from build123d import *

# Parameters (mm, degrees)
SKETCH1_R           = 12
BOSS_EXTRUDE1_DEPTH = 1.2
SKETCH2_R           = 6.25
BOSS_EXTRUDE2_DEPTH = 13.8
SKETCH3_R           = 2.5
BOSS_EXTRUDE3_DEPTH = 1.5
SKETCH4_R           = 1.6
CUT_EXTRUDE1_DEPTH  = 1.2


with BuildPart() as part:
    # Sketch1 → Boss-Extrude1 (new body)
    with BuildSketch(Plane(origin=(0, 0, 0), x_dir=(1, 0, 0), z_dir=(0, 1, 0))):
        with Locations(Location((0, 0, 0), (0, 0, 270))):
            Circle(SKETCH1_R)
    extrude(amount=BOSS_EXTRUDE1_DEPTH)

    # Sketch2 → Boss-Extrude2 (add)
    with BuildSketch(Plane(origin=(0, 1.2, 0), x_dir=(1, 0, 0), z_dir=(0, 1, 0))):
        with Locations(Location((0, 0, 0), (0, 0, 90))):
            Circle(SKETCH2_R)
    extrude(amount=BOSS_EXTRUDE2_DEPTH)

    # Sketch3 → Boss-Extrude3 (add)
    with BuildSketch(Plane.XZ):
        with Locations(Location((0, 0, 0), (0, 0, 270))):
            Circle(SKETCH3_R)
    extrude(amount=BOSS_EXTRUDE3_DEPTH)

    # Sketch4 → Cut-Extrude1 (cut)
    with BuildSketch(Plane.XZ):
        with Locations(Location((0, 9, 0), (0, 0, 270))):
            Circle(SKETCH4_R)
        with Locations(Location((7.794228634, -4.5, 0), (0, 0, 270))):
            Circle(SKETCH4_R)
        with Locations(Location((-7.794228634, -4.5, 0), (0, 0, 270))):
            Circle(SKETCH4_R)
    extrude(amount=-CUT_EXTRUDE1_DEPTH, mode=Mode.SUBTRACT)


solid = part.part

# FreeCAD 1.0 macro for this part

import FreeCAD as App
import Part
import Sketcher
Q = App.Units.Quantity

doc = App.newDocument("Part")
body = doc.addObject("PartDesign::Body", "Body")

# Sketch on XZ plane
sketch1 = body.newObject("Sketcher::SketchObject", "Sketch")
sketch1.AttachmentSupport = (doc.getObject("XZ_Plane"), [""])
sketch1.MapMode = "FlatFace"
sketch1.addGeometry(Part.Circle(App.Vector(0, 0, 0), App.Vector(0, 0, 1), 12), False)
sketch1.addConstraint(Sketcher.Constraint("Coincident", 0, 3, -1, 1))
sketch1.addConstraint(Sketcher.Constraint("Diameter", 0, Q("24 mm")))
pad1 = body.newObject("PartDesign::Pad", "Pad")
pad1.Profile = sketch1
pad1.Length = 1.2
pad1.Reversed = True

# Sketch on XZ plane
sketch2 = body.newObject("Sketcher::SketchObject", "Sketch001")
sketch2.AttachmentSupport = (doc.getObject("XZ_Plane"), [""])
sketch2.MapMode = "FlatFace"
sketch2.AttachmentOffset = App.Placement(App.Vector(0, 0, -1.2), App.Rotation())
sketch2.addGeometry(Part.Circle(App.Vector(0, 0, 0), App.Vector(0, 0, 1), 6.25), False)
sketch2.addConstraint(Sketcher.Constraint("Coincident", 0, 3, -1, 1))
sketch2.addConstraint(Sketcher.Constraint("Diameter", 0, Q("12.5 mm")))
pad2 = body.newObject("PartDesign::Pad", "Pad001")
pad2.Profile = sketch2
pad2.Length = 13.8
pad2.Reversed = True

# Sketch on XZ plane
sketch3 = body.newObject("Sketcher::SketchObject", "Sketch002")
sketch3.AttachmentSupport = (doc.getObject("XZ_Plane"), [""])
sketch3.MapMode = "FlatFace"
sketch3.addGeometry(Part.Circle(App.Vector(0, 0, 0), App.Vector(0, 0, 1), 2.5), False)
sketch3.addConstraint(Sketcher.Constraint("Coincident", 0, 3, -1, 1))
sketch3.addConstraint(Sketcher.Constraint("Diameter", 0, Q("5 mm")))
pad3 = body.newObject("PartDesign::Pad", "Pad002")
pad3.Profile = sketch3
pad3.Length = 1.5

# Sketch on XZ plane
sketch4 = body.newObject("Sketcher::SketchObject", "Sketch003")
sketch4.AttachmentSupport = (doc.getObject("XZ_Plane"), [""])
sketch4.MapMode = "FlatFace"
sketch4.addGeometry(Part.Circle(App.Vector(0, 9, 0), App.Vector(0, 0, 1), 1.6), False)
sketch4.addGeometry(Part.Circle(App.Vector(7.794229, -4.5, 0), App.Vector(0, 0, 1), 1.6), False)
sketch4.addGeometry(Part.Circle(App.Vector(-7.794229, -4.5, 0), App.Vector(0, 0, 1), 1.6), False)
sketch4.addConstraint(Sketcher.Constraint("Equal", 0, 1))
sketch4.addConstraint(Sketcher.Constraint("Equal", 1, 2))
sketch4.addConstraint(Sketcher.Constraint("Symmetric", 1, 3, 2, 3, -2))
sketch4.addConstraint(Sketcher.Constraint("PointOnObject", 0, 3, -2))
sketch4.addConstraint(Sketcher.Constraint("Diameter", 0, Q("3.2 mm")))
sketch4.addConstraint(Sketcher.Constraint("DistanceY", -1, 1, 0, 3, Q("9 mm")))
sketch4.addConstraint(Sketcher.Constraint("DistanceY", 1, 3, -1, 1, Q("4.5 mm")))
sketch4.addConstraint(Sketcher.Constraint("DistanceX", -1, 1, 1, 3, Q("7.794229 mm")))
pocket1 = body.newObject("PartDesign::Pocket", "Pocket")
pocket1.Profile = sketch4
pocket1.Length = 1.2

doc.recompute()
